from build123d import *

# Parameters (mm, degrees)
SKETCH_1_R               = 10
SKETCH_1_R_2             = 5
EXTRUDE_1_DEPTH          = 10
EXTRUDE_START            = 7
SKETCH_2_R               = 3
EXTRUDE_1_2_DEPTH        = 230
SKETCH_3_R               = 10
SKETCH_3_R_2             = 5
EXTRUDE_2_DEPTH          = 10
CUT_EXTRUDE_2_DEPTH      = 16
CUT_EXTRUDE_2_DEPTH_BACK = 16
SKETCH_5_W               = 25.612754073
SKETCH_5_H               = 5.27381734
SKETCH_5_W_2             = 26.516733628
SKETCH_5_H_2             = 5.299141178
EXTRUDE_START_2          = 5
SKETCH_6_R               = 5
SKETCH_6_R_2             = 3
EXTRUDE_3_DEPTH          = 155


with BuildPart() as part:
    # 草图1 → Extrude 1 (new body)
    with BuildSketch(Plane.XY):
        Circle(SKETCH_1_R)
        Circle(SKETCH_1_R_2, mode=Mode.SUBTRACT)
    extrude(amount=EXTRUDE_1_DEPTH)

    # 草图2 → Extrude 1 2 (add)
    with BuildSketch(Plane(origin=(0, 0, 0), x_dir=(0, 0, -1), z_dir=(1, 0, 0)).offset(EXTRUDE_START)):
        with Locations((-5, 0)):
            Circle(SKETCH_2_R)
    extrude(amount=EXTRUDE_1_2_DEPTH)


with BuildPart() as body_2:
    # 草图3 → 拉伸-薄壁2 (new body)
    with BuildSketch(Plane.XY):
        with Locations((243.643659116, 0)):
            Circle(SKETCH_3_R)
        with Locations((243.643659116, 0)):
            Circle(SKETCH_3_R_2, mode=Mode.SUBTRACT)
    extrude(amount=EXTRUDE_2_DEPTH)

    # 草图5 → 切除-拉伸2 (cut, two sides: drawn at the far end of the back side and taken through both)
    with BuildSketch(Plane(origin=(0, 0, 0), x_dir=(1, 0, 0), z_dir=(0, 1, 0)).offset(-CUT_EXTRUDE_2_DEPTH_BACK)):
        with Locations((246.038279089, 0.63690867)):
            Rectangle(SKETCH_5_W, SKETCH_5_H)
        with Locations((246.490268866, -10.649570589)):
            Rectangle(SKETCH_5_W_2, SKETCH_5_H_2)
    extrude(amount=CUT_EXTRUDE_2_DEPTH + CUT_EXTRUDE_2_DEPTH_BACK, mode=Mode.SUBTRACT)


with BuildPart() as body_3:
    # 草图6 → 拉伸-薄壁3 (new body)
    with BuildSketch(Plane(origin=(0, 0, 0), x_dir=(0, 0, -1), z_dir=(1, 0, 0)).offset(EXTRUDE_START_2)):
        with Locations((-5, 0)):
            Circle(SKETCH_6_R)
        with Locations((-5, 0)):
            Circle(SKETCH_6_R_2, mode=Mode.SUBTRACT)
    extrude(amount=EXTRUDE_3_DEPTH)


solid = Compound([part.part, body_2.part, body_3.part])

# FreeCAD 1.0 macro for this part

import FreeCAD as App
import Part
import Sketcher
Q = App.Units.Quantity


def add_polygon(sketch, points):
    """Adds a closed chain of lines whose ends are joined by coincident constraints."""
    first, n = sketch.GeometryCount, len(points)
    for a, b in zip(points, points[1:] + points[:1]):
        sketch.addGeometry(Part.LineSegment(App.Vector(*a, 0), App.Vector(*b, 0)), False)
    for i in range(n):
        sketch.addConstraint(Sketcher.Constraint("Coincident", first + i, 2, first + (i + 1) % n, 1))

doc = App.newDocument("Part")
body = doc.addObject("PartDesign::Body", "Body")

# Sketch on XY plane
sketch1 = body.newObject("Sketcher::SketchObject", "Sketch")
sketch1.AttachmentSupport = (doc.getObject("XY_Plane"), [""])
sketch1.MapMode = "FlatFace"
sketch1.addGeometry(Part.Circle(App.Vector(0, 0, 0), App.Vector(0, 0, 1), 10), False)
sketch1.addGeometry(Part.Circle(App.Vector(0, 0, 0), App.Vector(0, 0, 1), 5), False)
sketch1.addConstraint(Sketcher.Constraint("Coincident", 0, 3, -1, 1))
sketch1.addConstraint(Sketcher.Constraint("Coincident", 1, 3, -1, 1))
sketch1.addConstraint(Sketcher.Constraint("Diameter", 0, Q("20 mm")))
sketch1.addConstraint(Sketcher.Constraint("Diameter", 1, Q("10 mm")))
pad1 = body.newObject("PartDesign::Pad", "Pad")
pad1.Profile = sketch1
pad1.Length = 10

# Sketch on YZ plane
sketch2 = body.newObject("Sketcher::SketchObject", "Sketch001")
sketch2.AttachmentSupport = (doc.getObject("YZ_Plane"), [""])
sketch2.MapMode = "FlatFace"
sketch2.AttachmentOffset = App.Placement(App.Vector(0, 0, 7), App.Rotation())
sketch2.addGeometry(Part.Circle(App.Vector(0, 5, 0), App.Vector(0, 0, 1), 3), False)
sketch2.addConstraint(Sketcher.Constraint("PointOnObject", 0, 3, -2))
sketch2.addConstraint(Sketcher.Constraint("Diameter", 0, Q("6 mm")))
sketch2.addConstraint(Sketcher.Constraint("DistanceY", -1, 1, 0, 3, Q("5 mm")))
pad2 = body.newObject("PartDesign::Pad", "Pad001")
pad2.Profile = sketch2
pad2.Length = 230
body2 = doc.addObject("PartDesign::Body", "Body001")

# Sketch on XY plane
sketch3 = body2.newObject("Sketcher::SketchObject", "Sketch002")
sketch3.AttachmentSupport = (doc.getObject("XY_Plane001"), [""])
sketch3.MapMode = "FlatFace"
sketch3.addGeometry(Part.Circle(App.Vector(243.643659, 0, 0), App.Vector(0, 0, 1), 10), False)
sketch3.addGeometry(Part.Circle(App.Vector(243.643659, 0, 0), App.Vector(0, 0, 1), 5), False)
sketch3.addConstraint(Sketcher.Constraint("Coincident", 1, 3, 0, 3))
sketch3.addConstraint(Sketcher.Constraint("PointOnObject", 0, 3, -1))
sketch3.addConstraint(Sketcher.Constraint("Diameter", 0, Q("20 mm")))
sketch3.addConstraint(Sketcher.Constraint("Diameter", 1, Q("10 mm")))
sketch3.addConstraint(Sketcher.Constraint("DistanceX", -1, 1, 0, 3, Q("243.643659 mm")))
pad3 = body2.newObject("PartDesign::Pad", "Pad002")
pad3.Profile = sketch3
pad3.Length = 10

# Sketch on XZ plane
sketch4 = body2.newObject("Sketcher::SketchObject", "Sketch003")
sketch4.AttachmentSupport = (doc.getObject("XZ_Plane001"), [""])
sketch4.MapMode = "FlatFace"
add_polygon(sketch4, [(233.231902, -3.273817), (233.231902, 2), (258.844656, 2), (258.844656, -3.273817)])  # lines 0-3
add_polygon(sketch4, [(233.231902, 8), (233.231902, 13.299141), (259.748636, 13.299141), (259.748636, 8)])  # lines 4-7
sketch4.addConstraint(Sketcher.Constraint("Vertical", 0))
sketch4.addConstraint(Sketcher.Constraint("Horizontal", 1))
sketch4.addConstraint(Sketcher.Constraint("Vertical", 2))
sketch4.addConstraint(Sketcher.Constraint("Horizontal", 3))
sketch4.addConstraint(Sketcher.Constraint("Vertical", 4))
sketch4.addConstraint(Sketcher.Constraint("Horizontal", 5))
sketch4.addConstraint(Sketcher.Constraint("Vertical", 6))
sketch4.addConstraint(Sketcher.Constraint("Horizontal", 7))
sketch4.addConstraint(Sketcher.Constraint("Vertical", 3, 2, 4, 2))
sketch4.addConstraint(Sketcher.Constraint("DistanceY", -1, 1, 0, 2, Q("2 mm")))
sketch4.addConstraint(Sketcher.Constraint("DistanceY", -1, 1, 6, 2, Q("8 mm")))
sketch4.addConstraint(Sketcher.Constraint("DistanceY", 4, 1, 4, 2, Q("5.299141 mm")))
sketch4.addConstraint(Sketcher.Constraint("DistanceX", 1, 1, 1, 2, Q("25.612754 mm")))
sketch4.addConstraint(Sketcher.Constraint("DistanceX", 5, 1, 5, 2, Q("26.516734 mm")))
sketch4.addConstraint(Sketcher.Constraint("DistanceY", 0, 1, 0, 2, Q("5.273817 mm")))
sketch4.addConstraint(Sketcher.Constraint("DistanceX", -1, 1, 0, 2, Q("233.231902 mm")))
pocket1 = body2.newObject("PartDesign::Pocket", "Pocket")
pocket1.Profile = sketch4
pocket1.Type = "ThroughAll"
pocket1.Midplane = True
body3 = doc.addObject("PartDesign::Body", "Body002")

# Sketch on YZ plane
sketch5 = body3.newObject("Sketcher::SketchObject", "Sketch004")
sketch5.AttachmentSupport = (doc.getObject("YZ_Plane002"), [""])
sketch5.MapMode = "FlatFace"
sketch5.AttachmentOffset = App.Placement(App.Vector(0, 0, 5), App.Rotation())
sketch5.addGeometry(Part.Circle(App.Vector(0, 5, 0), App.Vector(0, 0, 1), 5), False)
sketch5.addGeometry(Part.Circle(App.Vector(0, 5, 0), App.Vector(0, 0, 1), 3), False)
sketch5.addConstraint(Sketcher.Constraint("Coincident", 1, 3, 0, 3))
sketch5.addConstraint(Sketcher.Constraint("PointOnObject", 0, 3, -2))
sketch5.addConstraint(Sketcher.Constraint("Diameter", 0, Q("10 mm")))
sketch5.addConstraint(Sketcher.Constraint("Diameter", 1, Q("6 mm")))
sketch5.addConstraint(Sketcher.Constraint("DistanceY", -1, 1, 0, 3, Q("5 mm")))
pad4 = body3.newObject("PartDesign::Pad", "Pad003")
pad4.Profile = sketch5
pad4.Length = 155

doc.recompute()
